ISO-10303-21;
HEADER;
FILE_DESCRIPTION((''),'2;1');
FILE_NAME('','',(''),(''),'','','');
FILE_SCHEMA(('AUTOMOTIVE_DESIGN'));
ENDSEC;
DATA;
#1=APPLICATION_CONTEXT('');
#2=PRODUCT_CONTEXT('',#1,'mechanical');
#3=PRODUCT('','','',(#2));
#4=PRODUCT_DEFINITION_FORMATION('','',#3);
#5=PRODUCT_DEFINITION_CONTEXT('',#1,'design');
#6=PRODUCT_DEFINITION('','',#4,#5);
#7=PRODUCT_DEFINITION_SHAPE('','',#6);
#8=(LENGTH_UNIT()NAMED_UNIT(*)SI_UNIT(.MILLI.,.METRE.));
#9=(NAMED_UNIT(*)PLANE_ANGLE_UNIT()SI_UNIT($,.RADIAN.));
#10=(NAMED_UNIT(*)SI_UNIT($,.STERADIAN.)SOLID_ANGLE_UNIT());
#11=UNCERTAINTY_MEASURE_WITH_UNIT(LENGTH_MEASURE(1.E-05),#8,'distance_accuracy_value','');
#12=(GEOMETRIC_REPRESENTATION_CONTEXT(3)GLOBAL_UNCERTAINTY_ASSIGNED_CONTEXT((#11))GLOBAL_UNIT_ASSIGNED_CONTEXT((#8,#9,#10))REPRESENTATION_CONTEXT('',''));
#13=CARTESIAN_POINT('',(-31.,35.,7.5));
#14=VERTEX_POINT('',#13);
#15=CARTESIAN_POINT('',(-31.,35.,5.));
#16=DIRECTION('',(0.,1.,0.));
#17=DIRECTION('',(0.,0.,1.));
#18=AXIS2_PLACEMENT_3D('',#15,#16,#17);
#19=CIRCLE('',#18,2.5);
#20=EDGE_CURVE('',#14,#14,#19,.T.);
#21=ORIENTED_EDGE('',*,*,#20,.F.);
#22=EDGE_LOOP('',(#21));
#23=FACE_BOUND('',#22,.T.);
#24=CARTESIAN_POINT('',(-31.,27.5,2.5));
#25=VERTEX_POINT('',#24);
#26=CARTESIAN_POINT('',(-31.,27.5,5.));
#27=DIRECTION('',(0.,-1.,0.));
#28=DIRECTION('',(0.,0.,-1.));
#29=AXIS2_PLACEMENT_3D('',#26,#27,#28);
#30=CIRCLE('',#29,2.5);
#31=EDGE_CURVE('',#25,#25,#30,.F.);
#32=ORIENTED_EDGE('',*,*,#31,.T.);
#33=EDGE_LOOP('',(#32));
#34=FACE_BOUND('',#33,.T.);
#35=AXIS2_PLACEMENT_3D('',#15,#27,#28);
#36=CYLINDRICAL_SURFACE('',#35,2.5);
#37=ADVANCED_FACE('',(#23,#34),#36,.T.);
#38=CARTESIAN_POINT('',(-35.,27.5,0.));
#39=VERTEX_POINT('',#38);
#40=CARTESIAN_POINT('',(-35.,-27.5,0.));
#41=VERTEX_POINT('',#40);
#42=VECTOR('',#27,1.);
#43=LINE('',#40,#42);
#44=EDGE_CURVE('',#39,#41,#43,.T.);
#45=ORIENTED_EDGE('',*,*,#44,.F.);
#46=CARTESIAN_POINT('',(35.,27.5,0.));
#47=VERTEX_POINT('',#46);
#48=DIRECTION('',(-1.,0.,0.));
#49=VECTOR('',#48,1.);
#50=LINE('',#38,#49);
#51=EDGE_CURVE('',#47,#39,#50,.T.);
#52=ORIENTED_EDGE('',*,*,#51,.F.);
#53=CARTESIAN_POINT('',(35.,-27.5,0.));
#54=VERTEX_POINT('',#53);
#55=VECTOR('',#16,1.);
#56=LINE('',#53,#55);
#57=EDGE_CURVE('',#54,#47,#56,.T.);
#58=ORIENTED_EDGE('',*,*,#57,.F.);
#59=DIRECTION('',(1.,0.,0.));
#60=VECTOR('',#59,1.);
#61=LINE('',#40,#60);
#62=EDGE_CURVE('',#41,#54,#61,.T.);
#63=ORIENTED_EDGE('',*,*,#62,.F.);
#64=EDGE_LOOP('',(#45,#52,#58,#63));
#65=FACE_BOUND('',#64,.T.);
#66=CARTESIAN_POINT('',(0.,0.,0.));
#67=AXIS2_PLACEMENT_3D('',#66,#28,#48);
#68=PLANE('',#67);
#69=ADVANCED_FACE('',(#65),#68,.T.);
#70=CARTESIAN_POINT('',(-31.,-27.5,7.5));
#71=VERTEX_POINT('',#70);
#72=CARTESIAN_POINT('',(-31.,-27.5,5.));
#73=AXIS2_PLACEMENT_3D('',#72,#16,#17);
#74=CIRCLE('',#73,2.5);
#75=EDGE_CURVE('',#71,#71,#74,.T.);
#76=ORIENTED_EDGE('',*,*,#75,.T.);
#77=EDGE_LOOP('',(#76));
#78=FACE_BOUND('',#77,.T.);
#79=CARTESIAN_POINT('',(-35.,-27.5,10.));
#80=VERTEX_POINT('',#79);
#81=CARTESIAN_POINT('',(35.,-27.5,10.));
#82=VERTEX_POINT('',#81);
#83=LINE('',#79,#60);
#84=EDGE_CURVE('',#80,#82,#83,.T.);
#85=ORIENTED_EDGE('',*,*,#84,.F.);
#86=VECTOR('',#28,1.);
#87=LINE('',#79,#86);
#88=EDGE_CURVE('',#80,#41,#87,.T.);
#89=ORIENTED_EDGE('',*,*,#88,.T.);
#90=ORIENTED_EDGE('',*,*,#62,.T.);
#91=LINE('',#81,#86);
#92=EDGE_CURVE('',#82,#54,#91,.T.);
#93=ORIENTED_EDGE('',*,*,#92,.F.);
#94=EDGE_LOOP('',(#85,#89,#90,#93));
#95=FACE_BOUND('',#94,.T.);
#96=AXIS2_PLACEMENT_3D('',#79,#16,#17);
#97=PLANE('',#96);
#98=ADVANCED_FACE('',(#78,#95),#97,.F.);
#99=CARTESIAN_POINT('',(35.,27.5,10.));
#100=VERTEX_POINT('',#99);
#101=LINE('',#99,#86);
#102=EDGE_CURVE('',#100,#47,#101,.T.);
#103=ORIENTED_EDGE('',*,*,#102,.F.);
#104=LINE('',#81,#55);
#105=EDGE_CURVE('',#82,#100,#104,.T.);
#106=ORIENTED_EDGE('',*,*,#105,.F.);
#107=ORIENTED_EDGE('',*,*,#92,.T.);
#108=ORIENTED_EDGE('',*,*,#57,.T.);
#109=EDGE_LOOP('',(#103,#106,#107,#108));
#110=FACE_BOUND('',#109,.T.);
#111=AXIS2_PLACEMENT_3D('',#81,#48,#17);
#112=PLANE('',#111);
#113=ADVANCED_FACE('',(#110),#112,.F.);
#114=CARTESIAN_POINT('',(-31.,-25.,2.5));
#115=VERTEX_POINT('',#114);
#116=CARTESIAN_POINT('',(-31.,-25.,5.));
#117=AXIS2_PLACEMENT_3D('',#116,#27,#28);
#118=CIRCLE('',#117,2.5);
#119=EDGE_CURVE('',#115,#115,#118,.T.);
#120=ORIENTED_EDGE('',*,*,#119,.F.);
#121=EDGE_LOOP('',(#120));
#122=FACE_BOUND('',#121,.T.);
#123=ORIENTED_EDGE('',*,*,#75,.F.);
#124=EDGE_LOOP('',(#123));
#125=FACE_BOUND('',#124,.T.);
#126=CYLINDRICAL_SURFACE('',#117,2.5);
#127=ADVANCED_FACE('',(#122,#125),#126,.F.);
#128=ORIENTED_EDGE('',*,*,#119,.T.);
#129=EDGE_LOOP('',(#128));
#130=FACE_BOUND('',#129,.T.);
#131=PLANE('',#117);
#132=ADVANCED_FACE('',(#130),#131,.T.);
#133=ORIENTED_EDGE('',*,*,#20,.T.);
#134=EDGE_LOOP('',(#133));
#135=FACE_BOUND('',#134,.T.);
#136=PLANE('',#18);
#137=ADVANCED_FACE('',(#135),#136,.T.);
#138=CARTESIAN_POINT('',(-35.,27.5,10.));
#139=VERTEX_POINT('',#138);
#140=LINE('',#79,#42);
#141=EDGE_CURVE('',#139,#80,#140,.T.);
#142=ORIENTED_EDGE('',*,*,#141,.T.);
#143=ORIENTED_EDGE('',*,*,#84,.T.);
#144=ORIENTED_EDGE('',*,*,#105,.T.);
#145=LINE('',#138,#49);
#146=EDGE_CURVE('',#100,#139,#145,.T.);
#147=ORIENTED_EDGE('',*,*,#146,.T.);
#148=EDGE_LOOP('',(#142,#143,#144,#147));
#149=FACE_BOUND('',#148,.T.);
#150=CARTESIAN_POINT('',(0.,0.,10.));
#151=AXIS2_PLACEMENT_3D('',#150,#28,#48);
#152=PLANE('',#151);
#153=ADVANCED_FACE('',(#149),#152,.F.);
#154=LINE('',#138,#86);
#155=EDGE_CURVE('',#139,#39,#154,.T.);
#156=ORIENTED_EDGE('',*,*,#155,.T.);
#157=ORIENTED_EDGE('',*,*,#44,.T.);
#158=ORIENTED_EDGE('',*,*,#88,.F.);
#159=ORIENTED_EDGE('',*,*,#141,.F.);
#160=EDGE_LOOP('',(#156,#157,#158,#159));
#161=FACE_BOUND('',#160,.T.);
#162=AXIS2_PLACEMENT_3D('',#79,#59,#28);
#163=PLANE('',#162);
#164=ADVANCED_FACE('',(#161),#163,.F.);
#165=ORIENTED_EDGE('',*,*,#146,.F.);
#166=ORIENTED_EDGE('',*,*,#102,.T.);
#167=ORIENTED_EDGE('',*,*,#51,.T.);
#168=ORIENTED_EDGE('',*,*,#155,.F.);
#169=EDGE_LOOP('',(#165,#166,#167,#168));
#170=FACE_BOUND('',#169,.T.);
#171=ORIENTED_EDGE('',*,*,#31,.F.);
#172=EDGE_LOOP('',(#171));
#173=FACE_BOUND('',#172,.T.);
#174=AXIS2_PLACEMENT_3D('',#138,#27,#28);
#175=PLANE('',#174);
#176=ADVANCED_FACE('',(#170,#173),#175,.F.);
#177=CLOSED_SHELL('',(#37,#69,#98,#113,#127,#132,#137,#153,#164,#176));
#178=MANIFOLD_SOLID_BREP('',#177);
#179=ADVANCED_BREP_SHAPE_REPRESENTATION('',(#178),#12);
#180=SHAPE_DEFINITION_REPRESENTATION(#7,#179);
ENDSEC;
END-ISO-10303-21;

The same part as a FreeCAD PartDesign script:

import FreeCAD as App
import Part
import Sketcher
Q = App.Units.Quantity


def add_polygon(sketch, points):
    """Adds a closed chain of lines whose ends are joined by coincident constraints."""
    first, n = sketch.GeometryCount, len(points)
    for a, b in zip(points, points[1:] + points[:1]):
        sketch.addGeometry(Part.LineSegment(App.Vector(*a, 0), App.Vector(*b, 0)), False)
    for i in range(n):
        sketch.addConstraint(Sketcher.Constraint("Coincident", first + i, 2, first + (i + 1) % n, 1))

doc = App.newDocument("Part")
params = doc.addObject("Spreadsheet::Sheet", "Params")
for row, (alias, value) in enumerate([
    ("sketch1_width", "70 mm"),
    ("sketch1_height", "55 mm"),
    ("pad1_length", "10 mm"),
    ("sketch2_diameter", "5 mm"),
    ("pad2_length", "70 mm"),
    ("sketch3_diameter", "5 mm"),
    ("pocket1_length", "10 mm"),
], start=1):
    params.set(f"A{row}", alias)
    params.set(f"B{row}", "=" + value)
    params.setAlias(f"B{row}", alias)

body = doc.addObject("PartDesign::Body", "Body")

# Sketch on XY plane
sketch1 = body.newObject("Sketcher::SketchObject", "Sketch")
sketch1.AttachmentSupport = (doc.getObject("XY_Plane"), [""])
sketch1.MapMode = "FlatFace"
add_polygon(sketch1, [(-35, 28), (-35, -28), (35, -28), (35, 28)])  # lines 0-3
sketch1.addConstraint([
    Sketcher.Constraint("Vertical", 0),
    Sketcher.Constraint("Horizontal", 1),
    Sketcher.Constraint("Vertical", 2),
    Sketcher.Constraint("Horizontal", 3),
    Sketcher.Constraint("Symmetric", 0, 2, 2, 2, -1, 1),
    Sketcher.Constraint("DistanceX", 1, 1, 1, 2, Q("70 mm")),
    Sketcher.Constraint("DistanceY", 0, 2, 0, 1, Q("55 mm")),
])
sketch1.setExpression("Constraints[9]", "Params.sketch1_width")
sketch1.setExpression("Constraints[10]", "Params.sketch1_height")
pad1 = body.newObject("PartDesign::Pad", "Pad")
pad1.Profile = sketch1
pad1.setExpression("Length", "Params.pad1_length")

# Sketch on XZ plane
sketch2 = body.newObject("Sketcher::SketchObject", "Sketch001")
sketch2.AttachmentSupport = (doc.getObject("XZ_Plane"), [""])
sketch2.MapMode = "FlatFace"
sketch2.addGeometry(Part.Circle(App.Vector(-31, 5, 0), App.Vector(0, 0, 1), 2.5), False)
sketch2.addConstraint([
    Sketcher.Constraint("Diameter", 0, Q("5 mm")),
    Sketcher.Constraint("DistanceX", 0, 3, -1, 1, Q("31 mm")),
    Sketcher.Constraint("DistanceY", -1, 1, 0, 3, Q("5 mm")),
])
sketch2.setExpression("Constraints[0]", "Params.sketch2_diameter")
pad2 = body.newObject("PartDesign::Pad", "Pad001")
pad2.Profile = sketch2
pad2.setExpression("Length", "Params.pad2_length")
pad2.Midplane = True

# Sketch on XZ plane
sketch3 = body.newObject("Sketcher::SketchObject", "Sketch002")
sketch3.AttachmentSupport = (doc.getObject("XZ_Plane"), [""])
sketch3.MapMode = "FlatFace"
sketch3.AttachmentOffset = App.Placement(App.Vector(0, 0, 35), App.Rotation())
sketch3.addGeometry(Part.Circle(App.Vector(-31, 5, 0), App.Vector(0, 0, 1), 2.5), False)
sketch3.addConstraint([
    Sketcher.Constraint("Diameter", 0, Q("5 mm")),
    Sketcher.Constraint("DistanceX", 0, 3, -1, 1, Q("31 mm")),
    Sketcher.Constraint("DistanceY", -1, 1, 0, 3, Q("5 mm")),
])
sketch3.setExpression("Constraints[0]", "Params.sketch3_diameter")
pocket1 = body.newObject("PartDesign::Pocket", "Pocket")
pocket1.Profile = sketch3
pocket1.setExpression("Length", "Params.pocket1_length")

doc.recompute()
